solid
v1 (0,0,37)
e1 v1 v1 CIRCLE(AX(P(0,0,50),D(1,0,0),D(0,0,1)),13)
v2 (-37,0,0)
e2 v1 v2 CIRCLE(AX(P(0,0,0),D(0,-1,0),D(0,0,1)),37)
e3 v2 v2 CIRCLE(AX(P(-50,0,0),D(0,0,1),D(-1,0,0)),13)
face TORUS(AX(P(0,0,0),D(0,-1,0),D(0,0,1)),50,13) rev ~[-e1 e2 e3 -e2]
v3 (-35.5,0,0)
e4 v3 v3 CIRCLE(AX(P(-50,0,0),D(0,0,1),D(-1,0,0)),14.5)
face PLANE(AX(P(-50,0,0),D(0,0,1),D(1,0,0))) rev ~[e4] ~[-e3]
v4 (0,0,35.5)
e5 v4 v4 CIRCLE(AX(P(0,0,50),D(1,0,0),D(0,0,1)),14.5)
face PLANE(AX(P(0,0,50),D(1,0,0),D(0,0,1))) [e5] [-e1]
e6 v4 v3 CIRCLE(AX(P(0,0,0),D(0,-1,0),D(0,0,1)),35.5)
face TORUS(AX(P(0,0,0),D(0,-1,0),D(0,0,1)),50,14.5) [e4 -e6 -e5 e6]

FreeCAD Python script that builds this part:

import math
import FreeCAD as App
import Part
import Sketcher

doc = App.newDocument("Part")
params = doc.addObject("Spreadsheet::Sheet", "Params")
for row, (alias, value) in enumerate([
    ("sketch1_diameter", "29 mm"),
    ("sketch1_diameter2", "26 mm"),
    ("sketch2_radius", "50 mm"),
], start=1):
    params.set(f"A{row}", alias)
    params.set(f"B{row}", "=" + value)
    params.setAlias(f"B{row}", alias)

body = doc.addObject("PartDesign::Body", "Body")

# Sketch on XY plane
sketch1 = body.newObject("Sketcher::SketchObject", "Sketch")
sketch1.AttachmentSupport = (doc.getObject("XY_Plane"), [""])
sketch1.MapMode = "FlatFace"
sketch1.addGeometry([
    Part.Circle(App.Vector(-50, 0, 0), App.Vector(0, 0, 1), 14),
    Part.Circle(App.Vector(-50, 0, 0), App.Vector(0, 0, 1), 13),
], False)
sketch1.addConstraint([
    Sketcher.Constraint("Coincident", 1, 3, 0, 3),
    Sketcher.Constraint("PointOnObject", 0, 3, -1),
    Sketcher.Constraint("Diameter", 0, 29.0),
    Sketcher.Constraint("Diameter", 1, 26.0),
    Sketcher.Constraint("DistanceX", 0, 3, -1, 1, 50.0),
])
sketch1.setExpression("Constraints[2]", "Params.sketch1_diameter")
sketch1.setExpression("Constraints[3]", "Params.sketch1_diameter2")

# Sketch on XZ plane
sketch2 = body.newObject("Sketcher::SketchObject", "Sketch001")
sketch2.AttachmentSupport = (doc.getObject("XZ_Plane"), [""])
sketch2.MapMode = "FlatFace"
sketch2.addGeometry(Part.ArcOfCircle(Part.Circle(App.Vector(0, 0, 0), App.Vector(0, 0, 1), 50), math.radians(90), math.radians(180)), False)
sketch2.addConstraint([
    Sketcher.Constraint("Coincident", 0, 3, -1, 1),
    Sketcher.Constraint("PointOnObject", 0, 1, -2),
    Sketcher.Constraint("PointOnObject", 0, 2, -1),
    Sketcher.Constraint("Radius", 0, 50.0),
])
sketch2.setExpression("Constraints[3]", "Params.sketch2_radius")
doc.recompute()

additivepipe = body.newObject("PartDesign::AdditivePipe", "AdditivePipe")
additivepipe.Profile = sketch1
additivepipe.Spine = (sketch2, ["Edge1"])

doc.recompute()
